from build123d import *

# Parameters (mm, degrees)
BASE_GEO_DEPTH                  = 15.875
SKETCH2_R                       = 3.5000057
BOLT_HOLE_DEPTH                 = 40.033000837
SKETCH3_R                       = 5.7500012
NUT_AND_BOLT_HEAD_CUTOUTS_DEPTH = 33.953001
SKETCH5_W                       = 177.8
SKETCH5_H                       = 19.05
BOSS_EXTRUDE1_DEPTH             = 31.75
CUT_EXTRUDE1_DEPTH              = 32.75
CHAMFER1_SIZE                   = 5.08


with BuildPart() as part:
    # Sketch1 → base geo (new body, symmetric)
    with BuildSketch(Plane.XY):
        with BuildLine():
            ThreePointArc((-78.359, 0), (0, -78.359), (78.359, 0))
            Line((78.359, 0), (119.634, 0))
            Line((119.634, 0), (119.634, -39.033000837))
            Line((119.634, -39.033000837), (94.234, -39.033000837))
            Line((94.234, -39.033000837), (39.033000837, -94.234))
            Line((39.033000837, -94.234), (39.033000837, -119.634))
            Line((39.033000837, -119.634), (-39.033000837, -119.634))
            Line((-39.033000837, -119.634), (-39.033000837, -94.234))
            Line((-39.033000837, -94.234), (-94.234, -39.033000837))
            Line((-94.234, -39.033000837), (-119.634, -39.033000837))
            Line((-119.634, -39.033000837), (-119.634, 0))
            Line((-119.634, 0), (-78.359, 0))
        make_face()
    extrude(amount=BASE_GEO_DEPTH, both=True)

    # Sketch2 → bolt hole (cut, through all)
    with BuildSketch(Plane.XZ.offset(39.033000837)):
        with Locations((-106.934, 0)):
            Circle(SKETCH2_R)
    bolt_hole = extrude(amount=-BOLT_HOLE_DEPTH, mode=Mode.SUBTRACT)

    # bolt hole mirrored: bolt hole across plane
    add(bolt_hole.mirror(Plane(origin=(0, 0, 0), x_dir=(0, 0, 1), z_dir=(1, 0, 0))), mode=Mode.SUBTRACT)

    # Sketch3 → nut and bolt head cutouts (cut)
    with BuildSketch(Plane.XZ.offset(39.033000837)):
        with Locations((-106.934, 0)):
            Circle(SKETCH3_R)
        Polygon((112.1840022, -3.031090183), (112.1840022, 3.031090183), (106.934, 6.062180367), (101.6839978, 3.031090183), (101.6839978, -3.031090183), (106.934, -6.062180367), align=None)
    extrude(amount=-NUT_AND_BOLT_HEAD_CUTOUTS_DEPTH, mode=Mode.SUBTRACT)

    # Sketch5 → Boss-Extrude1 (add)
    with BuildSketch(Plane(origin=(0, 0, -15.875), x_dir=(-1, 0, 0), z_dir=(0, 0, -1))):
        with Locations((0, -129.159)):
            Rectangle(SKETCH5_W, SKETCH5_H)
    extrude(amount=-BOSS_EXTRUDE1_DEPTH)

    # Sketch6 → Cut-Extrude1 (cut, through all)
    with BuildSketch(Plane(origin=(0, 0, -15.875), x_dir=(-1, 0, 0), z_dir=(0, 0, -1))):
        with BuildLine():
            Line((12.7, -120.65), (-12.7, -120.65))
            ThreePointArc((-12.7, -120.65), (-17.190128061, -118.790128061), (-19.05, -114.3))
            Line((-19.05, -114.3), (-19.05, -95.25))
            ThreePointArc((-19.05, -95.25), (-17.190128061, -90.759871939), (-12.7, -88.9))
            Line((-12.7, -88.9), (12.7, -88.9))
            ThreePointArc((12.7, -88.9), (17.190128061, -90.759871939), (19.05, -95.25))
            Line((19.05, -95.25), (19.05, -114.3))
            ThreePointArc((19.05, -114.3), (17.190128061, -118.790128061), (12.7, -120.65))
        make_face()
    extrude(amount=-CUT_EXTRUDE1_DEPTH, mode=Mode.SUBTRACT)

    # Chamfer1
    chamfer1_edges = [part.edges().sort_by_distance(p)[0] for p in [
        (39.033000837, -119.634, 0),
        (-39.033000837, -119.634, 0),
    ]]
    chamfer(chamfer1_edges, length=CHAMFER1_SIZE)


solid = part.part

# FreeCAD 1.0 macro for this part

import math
import FreeCAD as App
import Part
import Sketcher
Q = App.Units.Quantity


def edges_at(feature, points):
    """Names of the edges that pass closest to the given points."""
    edges = feature.Shape.Edges
    near = lambda p: min(range(len(edges)), key=lambda i: edges[i].distToShape(Part.Vertex(*p))[0])
    return sorted({f"Edge{near(p) + 1}" for p in points})


def add_polygon(sketch, points):
    """Adds a closed chain of lines whose ends are joined by coincident constraints."""
    first, n = sketch.GeometryCount, len(points)
    for a, b in zip(points, points[1:] + points[:1]):
        sketch.addGeometry(Part.LineSegment(App.Vector(*a, 0), App.Vector(*b, 0)), False)
    for i in range(n):
        sketch.addConstraint(Sketcher.Constraint("Coincident", first + i, 2, first + (i + 1) % n, 1))

doc = App.newDocument("Part")
body = doc.addObject("PartDesign::Body", "Body")

# Sketch on XY plane
sketch1 = body.newObject("Sketcher::SketchObject", "Sketch")
sketch1.AttachmentSupport = (doc.getObject("XY_Plane"), [""])
sketch1.MapMode = "FlatFace"
sketch1.addGeometry(Part.ArcOfCircle(Part.Circle(App.Vector(0, 0, 0), App.Vector(0, 0, 1), 78), math.radians(180), math.radians(360)), False)
sketch1.addGeometry(Part.LineSegment(App.Vector(-78, 0, 0), App.Vector(-120, 0, 0)), False)
sketch1.addGeometry(Part.LineSegment(App.Vector(-120, 0, 0), App.Vector(-120, -39, 0)), False)
sketch1.addGeometry(Part.LineSegment(App.Vector(-120, -39, 0), App.Vector(-94, -39, 0)), False)
sketch1.addGeometry(Part.LineSegment(App.Vector(-94, -39, 0), App.Vector(-39, -94, 0)), False)
sketch1.addGeometry(Part.LineSegment(App.Vector(-39, -94, 0), App.Vector(-39, -120, 0)), False)
sketch1.addGeometry(Part.LineSegment(App.Vector(-39, -120, 0), App.Vector(39, -120, 0)), False)
sketch1.addGeometry(Part.LineSegment(App.Vector(39, -120, 0), App.Vector(39, -94, 0)), False)
sketch1.addGeometry(Part.LineSegment(App.Vector(39, -94, 0), App.Vector(94, -39, 0)), False)
sketch1.addGeometry(Part.LineSegment(App.Vector(94, -39, 0), App.Vector(120, -39, 0)), False)
sketch1.addGeometry(Part.LineSegment(App.Vector(120, -39, 0), App.Vector(120, 0, 0)), False)
sketch1.addGeometry(Part.LineSegment(App.Vector(120, 0, 0), App.Vector(78, 0, 0)), False)
sketch1.addConstraint(Sketcher.Constraint("Coincident", 0, 1, 1, 1))
sketch1.addConstraint(Sketcher.Constraint("Coincident", 1, 2, 2, 1))
sketch1.addConstraint(Sketcher.Constraint("Coincident", 2, 2, 3, 1))
sketch1.addConstraint(Sketcher.Constraint("Coincident", 3, 2, 4, 1))
sketch1.addConstraint(Sketcher.Constraint("Coincident", 4, 2, 5, 1))
sketch1.addConstraint(Sketcher.Constraint("Coincident", 5, 2, 6, 1))
sketch1.addConstraint(Sketcher.Constraint("Coincident", 6, 2, 7, 1))
sketch1.addConstraint(Sketcher.Constraint("Coincident", 7, 2, 8, 1))
sketch1.addConstraint(Sketcher.Constraint("Coincident", 8, 2, 9, 1))
sketch1.addConstraint(Sketcher.Constraint("Coincident", 9, 2, 10, 1))
sketch1.addConstraint(Sketcher.Constraint("Coincident", 10, 2, 11, 1))
sketch1.addConstraint(Sketcher.Constraint("Coincident", 11, 2, 0, 2))
sketch1.addConstraint(Sketcher.Constraint("Horizontal", 1))
sketch1.addConstraint(Sketcher.Constraint("Vertical", 2))
sketch1.addConstraint(Sketcher.Constraint("Horizontal", 3))
sketch1.addConstraint(Sketcher.Constraint("Vertical", 5))
sketch1.addConstraint(Sketcher.Constraint("Horizontal", 6))
sketch1.addConstraint(Sketcher.Constraint("Vertical", 7))
sketch1.addConstraint(Sketcher.Constraint("Horizontal", 9))
sketch1.addConstraint(Sketcher.Constraint("Vertical", 10))
sketch1.addConstraint(Sketcher.Constraint("Horizontal", 11))
sketch1.addConstraint(Sketcher.Constraint("Coincident", 0, 3, -1, 1))
sketch1.addConstraint(Sketcher.Constraint("Symmetric", 1, 2, 10, 2, -1, 1))
sketch1.addConstraint(Sketcher.Constraint("Symmetric", 4, 2, 7, 2, -2))
sketch1.addConstraint(Sketcher.Constraint("Symmetric", 3, 2, 8, 2, -2))
sketch1.addConstraint(Sketcher.Constraint("PointOnObject", 0, 1, -1))
sketch1.addConstraint(Sketcher.Constraint("Perpendicular", 4, 8))
sketch1.addConstraint(Sketcher.Constraint("Equal", 9, 5))
sketch1.addConstraint(Sketcher.Constraint("DistanceX", 3, 1, 3, 2, Q("1 in")))
sketch1.addConstraint(Sketcher.Constraint("Radius", 0, Q("3.085 in")))
sketch1.addConstraint(Sketcher.Constraint("DistanceX", 1, 2, 1, 1, Q("1.625 in")))
sketch1.addConstraint(Sketcher.Constraint("DistanceY", 4, 2, -1, 1, Q("3.71 in")))
sketch1.addConstraint(Sketcher.Constraint("DistanceX", 6, 1, 6, 2, Q("78.066002 mm")))
pad1 = body.newObject("PartDesign::Pad", "Pad")
pad1.Profile = sketch1
pad1.Length = Q("1.25 in")
pad1.Midplane = True

# Sketch on XZ plane
sketch2 = body.newObject("Sketcher::SketchObject", "Sketch001")
sketch2.AttachmentSupport = (doc.getObject("XZ_Plane"), [""])
sketch2.MapMode = "FlatFace"
sketch2.AttachmentOffset = App.Placement(App.Vector(0, 0, 39.033001), App.Rotation())
sketch2.addGeometry(Part.Circle(App.Vector(-106.9, 0, 0), App.Vector(0, 0, 1), 3.5), False)
sketch2.addConstraint(Sketcher.Constraint("PointOnObject", 0, 3, -1))
sketch2.addConstraint(Sketcher.Constraint("DistanceX", 0, 3, -1, 1, Q("4.21 in")))
sketch2.addConstraint(Sketcher.Constraint("Diameter", 0, Q("7.000011 mm")))
pocket1 = body.newObject("PartDesign::Pocket", "Pocket")
pocket1.Profile = sketch2
pocket1.Type = "ThroughAll"
doc.recompute()

mirrored = body.newObject("PartDesign::Mirrored", "Mirrored")
mirrored.Originals = [pocket1]
mirrored.MirrorPlane = (doc.getObject("YZ_Plane"), [""])
body.Tip = mirrored

# Sketch on XZ plane
sketch3 = body.newObject("Sketcher::SketchObject", "Sketch002")
sketch3.AttachmentSupport = (doc.getObject("XZ_Plane"), [""])
sketch3.MapMode = "FlatFace"
sketch3.AttachmentOffset = App.Placement(App.Vector(0, 0, 39.033001), App.Rotation())
sketch3.addGeometry(Part.Circle(App.Vector(-107, 0, 0), App.Vector(0, 0, 1), 6), False)  # 0
add_polygon(sketch3, [(112, -3), (112, 3), (107, 6), (102, 3), (102, -3), (107, -6)])  # lines 1-6
sketch3.addConstraint(Sketcher.Constraint("Vertical", 1))
sketch3.addConstraint(Sketcher.Constraint("Vertical", 4))
sketch3.addConstraint(Sketcher.Constraint("Symmetric", 2, 2, 5, 2, -1))
sketch3.addConstraint(Sketcher.Constraint("PointOnObject", 0, 3, -1))
sketch3.addConstraint(Sketcher.Constraint("Parallel", 2, 5))
sketch3.addConstraint(Sketcher.Constraint("Parallel", 3, 6))
sketch3.addConstraint(Sketcher.Constraint("Horizontal", 1, 2, 3, 2))
sketch3.addConstraint(Sketcher.Constraint("Horizontal", 4, 2, 6, 2))
sketch3.addConstraint(Sketcher.Constraint("Angle", 2, Q("150 deg")))
sketch3.addConstraint(Sketcher.Constraint("DistanceX", 0, 3, -1, 1, Q("4.21 in")))
sketch3.addConstraint(Sketcher.Constraint("DistanceX", -1, 1, 2, 2, Q("4.21 in")))
sketch3.addConstraint(Sketcher.Constraint("Diameter", 0, Q("11.500002 mm")))
sketch3.addConstraint(Sketcher.Constraint("DistanceY", 1, 1, 1, 2, Q("6.06218 mm")))
sketch3.addConstraint(Sketcher.Constraint("Distance", 2, Q("6.06218 mm")))
pocket2 = body.newObject("PartDesign::Pocket", "Pocket001")
pocket2.Profile = sketch3
pocket2.Length = 33.953001

# Sketch on XY plane
sketch4 = body.newObject("Sketcher::SketchObject", "Sketch003")
sketch4.AttachmentSupport = (doc.getObject("XY_Plane"), [""])
sketch4.MapMode = "FlatFace"
sketch4.AttachmentOffset = App.Placement(App.Vector(0, 0, -0.625 * 25.4), App.Rotation())
add_polygon(sketch4, [(89, -120), (89, -139), (-89, -139), (-89, -120)])  # lines 0-3
sketch4.addConstraint(Sketcher.Constraint("Vertical", 0))
sketch4.addConstraint(Sketcher.Constraint("Horizontal", 1))
sketch4.addConstraint(Sketcher.Constraint("Vertical", 2))
sketch4.addConstraint(Sketcher.Constraint("Horizontal", 3))
sketch4.addConstraint(Sketcher.Constraint("DistanceX", 1, 2, 1, 1, Q("7 in")))
sketch4.addConstraint(Sketcher.Constraint("DistanceY", 0, 2, 0, 1, Q("0.75 in")))
sketch4.addConstraint(Sketcher.Constraint("DistanceX", -1, 1, 0, 2, Q("3.5 in")))
sketch4.addConstraint(Sketcher.Constraint("DistanceY", 0, 2, -1, 1, Q("5.46 in")))
pad2 = body.newObject("PartDesign::Pad", "Pad001")
pad2.Profile = sketch4
pad2.Length = Q("1.25 in")

# Sketch on XY plane
sketch5 = body.newObject("Sketcher::SketchObject", "Sketch004")
sketch5.AttachmentSupport = (doc.getObject("XY_Plane"), [""])
sketch5.MapMode = "FlatFace"
sketch5.AttachmentOffset = App.Placement(App.Vector(0, 0, -0.625 * 25.4), App.Rotation())
sketch5.addGeometry(Part.LineSegment(App.Vector(13, -121, 0), App.Vector(-13, -121, 0)), False)
sketch5.addGeometry(Part.ArcOfCircle(Part.Circle(App.Vector(-13, -114, 0), App.Vector(0, 0, 1), 6), math.radians(180), math.radians(270)), False)
sketch5.addGeometry(Part.LineSegment(App.Vector(-19, -114, 0), App.Vector(-19, -95, 0)), False)
sketch5.addGeometry(Part.ArcOfCircle(Part.Circle(App.Vector(-13, -95, 0), App.Vector(0, 0, 1), 6), math.radians(90), math.radians(180)), False)
sketch5.addGeometry(Part.LineSegment(App.Vector(-13, -89, 0), App.Vector(13, -89, 0)), False)
sketch5.addGeometry(Part.ArcOfCircle(Part.Circle(App.Vector(13, -95, 0), App.Vector(0, 0, 1), 6), math.radians(0), math.radians(90)), False)
sketch5.addGeometry(Part.LineSegment(App.Vector(19, -95, 0), App.Vector(19, -114, 0)), False)
sketch5.addGeometry(Part.ArcOfCircle(Part.Circle(App.Vector(13, -114, 0), App.Vector(0, 0, 1), 6), math.radians(-90), math.radians(0)), False)
sketch5.addConstraint(Sketcher.Constraint("Tangent", 0, 2, 1, 2))
sketch5.addConstraint(Sketcher.Constraint("Tangent", 1, 1, 2, 1))
sketch5.addConstraint(Sketcher.Constraint("Tangent", 2, 2, 3, 2))
sketch5.addConstraint(Sketcher.Constraint("Tangent", 3, 1, 4, 1))
sketch5.addConstraint(Sketcher.Constraint("Tangent", 4, 2, 5, 2))
sketch5.addConstraint(Sketcher.Constraint("Tangent", 5, 1, 6, 1))
sketch5.addConstraint(Sketcher.Constraint("Tangent", 6, 2, 7, 2))
sketch5.addConstraint(Sketcher.Constraint("Tangent", 7, 1, 0, 1))
sketch5.addConstraint(Sketcher.Constraint("Horizontal", 0))
sketch5.addConstraint(Sketcher.Constraint("Vertical", 2))
sketch5.addConstraint(Sketcher.Constraint("Horizontal", 4))
sketch5.addConstraint(Sketcher.Constraint("Vertical", 6))
sketch5.addConstraint(Sketcher.Constraint("Equal", 1, 3))
sketch5.addConstraint(Sketcher.Constraint("Equal", 3, 5))
sketch5.addConstraint(Sketcher.Constraint("Equal", 5, 7))
sketch5.addConstraint(Sketcher.Constraint("DistanceX", 0, 2, 0, 1, Q("1 in")))
sketch5.addConstraint(Sketcher.Constraint("Radius", 1, Q("0.25 in")))
sketch5.addConstraint(Sketcher.Constraint("DistanceY", 0, 2, 3, 3, Q("1 in")))
sketch5.addConstraint(Sketcher.Constraint("DistanceX", 1, 3, -1, 1, Q("0.5 in")))
sketch5.addConstraint(Sketcher.Constraint("DistanceY", 1, 3, -1, 1, Q("4.5 in")))
pocket3 = body.newObject("PartDesign::Pocket", "Pocket002")
pocket3.Profile = sketch5
pocket3.Type = "ThroughAll"
pocket3.Reversed = True
doc.recompute()

chamfer = body.newObject("PartDesign::Chamfer", "Chamfer")
chamfer.Base = (pocket3, edges_at(pocket3, [(39.033, -119.634, 0), (-39.033, -119.634, 0)]))
chamfer.Size = Q("0.2 in")

doc.recompute()
